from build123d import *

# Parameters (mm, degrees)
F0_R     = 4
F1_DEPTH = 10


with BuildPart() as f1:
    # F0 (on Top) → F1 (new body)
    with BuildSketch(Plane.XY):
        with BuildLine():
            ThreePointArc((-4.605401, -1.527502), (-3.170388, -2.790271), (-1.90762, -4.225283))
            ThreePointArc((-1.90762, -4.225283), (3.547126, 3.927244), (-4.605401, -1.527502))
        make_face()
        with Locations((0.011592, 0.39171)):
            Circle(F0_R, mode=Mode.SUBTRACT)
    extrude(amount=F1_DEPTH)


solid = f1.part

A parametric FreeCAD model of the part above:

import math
import FreeCAD as App
import Part
import Sketcher

V = App.Vector
Q = App.Units.Quantity

doc = App.newDocument("Part")
body = doc.addObject("PartDesign::Body", "Body")

# Sketch on XY plane
sketch1 = body.newObject("Sketcher::SketchObject", "Sketch")
sketch1.AttachmentSupport = (doc.getObject("XY_Plane"), [""])
sketch1.MapMode = "FlatFace"
sketch1.addGeometry([
    Part.ArcOfCircle(Part.Circle(V(-13.776985, -13.396867, 0), V(0, 0, 1), 14.999992), math.radians(37.693642), math.radians(52.306358)),
    Part.ArcOfCircle(Part.Circle(V(0.011592, 0.39171, 0), V(0, 0, 1), 5), math.radians(-112.571895), math.radians(202.571895)),
    Part.Circle(V(0.011592, 0.39171, 0), V(0, 0, 1), 4),
], False)
sketch1.addConstraint([
    Sketcher.Constraint("Coincident", 0, 1, 1, 1),
    Sketcher.Constraint("Coincident", 1, 2, 0, 2),
    Sketcher.Constraint("Coincident", 2, 3, 1, 3),
    Sketcher.Constraint("Diameter", 2, Q("8 mm")),
    Sketcher.Constraint("Radius", 1, Q("5 mm")),
    Sketcher.Constraint("Radius", 0, Q("14.999992 mm")),
    Sketcher.Constraint("DistanceX", 1, 2, -1, 1, Q("4.605401 mm")),
    Sketcher.Constraint("DistanceY", -1, 1, 1, 3, Q("0.39171 mm")),
    Sketcher.Constraint("DistanceX", 0, 1, -1, 1, Q("1.90762 mm")),
    Sketcher.Constraint("DistanceX", 0, 1, 2, 3, Q("1.919212 mm")),
])
pad1 = body.newObject("PartDesign::Pad", "Pad")
pad1.Profile = sketch1
pad1.Length = 10

doc.recompute()
